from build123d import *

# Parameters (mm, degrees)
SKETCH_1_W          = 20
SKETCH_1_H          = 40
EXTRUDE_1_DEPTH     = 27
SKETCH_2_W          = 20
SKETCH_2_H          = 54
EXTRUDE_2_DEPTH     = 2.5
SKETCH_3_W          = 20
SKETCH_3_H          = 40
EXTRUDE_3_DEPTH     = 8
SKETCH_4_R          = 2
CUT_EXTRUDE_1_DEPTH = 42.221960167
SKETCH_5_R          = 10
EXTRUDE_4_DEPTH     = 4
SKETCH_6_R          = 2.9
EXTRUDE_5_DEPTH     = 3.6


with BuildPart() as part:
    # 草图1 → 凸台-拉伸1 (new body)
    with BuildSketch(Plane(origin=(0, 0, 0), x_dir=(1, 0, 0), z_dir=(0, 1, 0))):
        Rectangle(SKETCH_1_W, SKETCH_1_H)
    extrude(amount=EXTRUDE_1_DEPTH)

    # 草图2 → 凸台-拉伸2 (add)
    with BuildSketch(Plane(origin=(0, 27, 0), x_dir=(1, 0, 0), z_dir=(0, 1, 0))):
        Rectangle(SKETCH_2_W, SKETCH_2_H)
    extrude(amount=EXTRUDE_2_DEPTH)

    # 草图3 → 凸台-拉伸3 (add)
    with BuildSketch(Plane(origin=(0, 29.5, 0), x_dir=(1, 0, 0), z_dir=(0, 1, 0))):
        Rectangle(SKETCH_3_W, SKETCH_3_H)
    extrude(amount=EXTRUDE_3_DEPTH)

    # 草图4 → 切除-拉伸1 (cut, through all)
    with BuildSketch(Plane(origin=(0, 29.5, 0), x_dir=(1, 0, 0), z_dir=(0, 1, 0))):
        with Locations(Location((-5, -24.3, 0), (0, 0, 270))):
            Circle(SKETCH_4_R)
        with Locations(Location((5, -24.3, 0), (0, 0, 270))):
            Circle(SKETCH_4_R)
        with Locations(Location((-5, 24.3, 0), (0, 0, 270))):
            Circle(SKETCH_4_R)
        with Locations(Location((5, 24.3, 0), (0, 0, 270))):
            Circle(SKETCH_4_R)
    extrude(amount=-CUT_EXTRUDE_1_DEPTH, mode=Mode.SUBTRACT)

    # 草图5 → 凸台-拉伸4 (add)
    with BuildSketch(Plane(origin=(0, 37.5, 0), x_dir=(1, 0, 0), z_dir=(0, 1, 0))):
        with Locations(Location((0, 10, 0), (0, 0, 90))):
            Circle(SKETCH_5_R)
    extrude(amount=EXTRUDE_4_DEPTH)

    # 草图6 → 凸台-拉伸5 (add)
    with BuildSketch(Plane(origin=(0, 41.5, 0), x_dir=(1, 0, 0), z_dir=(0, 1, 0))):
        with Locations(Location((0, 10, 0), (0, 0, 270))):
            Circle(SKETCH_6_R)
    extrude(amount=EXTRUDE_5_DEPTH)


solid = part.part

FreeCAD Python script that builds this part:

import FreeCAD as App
import Part
import Sketcher

doc = App.newDocument("Part")
body = doc.addObject("PartDesign::Body", "Body")

sketch1 = body.newObject("Sketcher::SketchObject", "Sketch")
sketch1.AttachmentSupport = (doc.getObject("XZ_Plane"), [""])
sketch1.MapMode = "FlatFace"
sketch1.addGeometry(Part.LineSegment(App.Vector(-10, -20, 0), App.Vector(-10, 20, 0)), False)
sketch1.addGeometry(Part.LineSegment(App.Vector(-10, 20, 0), App.Vector(10, 20, 0)), False)
sketch1.addGeometry(Part.LineSegment(App.Vector(10, 20, 0), App.Vector(10, -20, 0)), False)
sketch1.addGeometry(Part.LineSegment(App.Vector(10, -20, 0), App.Vector(-10, -20, 0)), False)
sketch1.addConstraint(Sketcher.Constraint("Coincident", 0, 2, 1, 1))
sketch1.addConstraint(Sketcher.Constraint("Coincident", 1, 2, 2, 1))
sketch1.addConstraint(Sketcher.Constraint("Coincident", 2, 2, 3, 1))
sketch1.addConstraint(Sketcher.Constraint("Coincident", 3, 2, 0, 1))
sketch1.addConstraint(Sketcher.Constraint("Vertical", 0))
sketch1.addConstraint(Sketcher.Constraint("Horizontal", 1))
sketch1.addConstraint(Sketcher.Constraint("Vertical", 2))
sketch1.addConstraint(Sketcher.Constraint("Horizontal", 3))
sketch1.addConstraint(Sketcher.Constraint("Symmetric", 0, 2, 2, 2, -1, 1))
sketch1.addConstraint(Sketcher.Constraint("DistanceX", 1, 1, 1, 2, 20.0))
sketch1.addConstraint(Sketcher.Constraint("DistanceY", 0, 1, 0, 2, 40.0))
pad1 = body.newObject("PartDesign::Pad", "Pad")
pad1.Profile = sketch1
pad1.Length = 27
pad1.Reversed = True

sketch2 = body.newObject("Sketcher::SketchObject", "Sketch001")
sketch2.AttachmentSupport = (doc.getObject("XZ_Plane"), [""])
sketch2.MapMode = "FlatFace"
sketch2.AttachmentOffset = App.Placement(App.Vector(0, 0, -27), App.Rotation())
sketch2.addGeometry(Part.LineSegment(App.Vector(-10, -27, 0), App.Vector(-10, 27, 0)), False)
sketch2.addGeometry(Part.LineSegment(App.Vector(-10, 27, 0), App.Vector(10, 27, 0)), False)
sketch2.addGeometry(Part.LineSegment(App.Vector(10, 27, 0), App.Vector(10, -27, 0)), False)
sketch2.addGeometry(Part.LineSegment(App.Vector(10, -27, 0), App.Vector(-10, -27, 0)), False)
sketch2.addConstraint(Sketcher.Constraint("Coincident", 0, 2, 1, 1))
sketch2.addConstraint(Sketcher.Constraint("Coincident", 1, 2, 2, 1))
sketch2.addConstraint(Sketcher.Constraint("Coincident", 2, 2, 3, 1))
sketch2.addConstraint(Sketcher.Constraint("Coincident", 3, 2, 0, 1))
sketch2.addConstraint(Sketcher.Constraint("Vertical", 0))
sketch2.addConstraint(Sketcher.Constraint("Horizontal", 1))
sketch2.addConstraint(Sketcher.Constraint("Vertical", 2))
sketch2.addConstraint(Sketcher.Constraint("Horizontal", 3))
sketch2.addConstraint(Sketcher.Constraint("Symmetric", 0, 2, 2, 2, -1, 1))
sketch2.addConstraint(Sketcher.Constraint("DistanceX", 1, 1, 1, 2, 20.0))
sketch2.addConstraint(Sketcher.Constraint("DistanceY", 0, 1, 0, 2, 54.0))
pad2 = body.newObject("PartDesign::Pad", "Pad001")
pad2.Profile = sketch2
pad2.Length = 2.5
pad2.Reversed = True

sketch3 = body.newObject("Sketcher::SketchObject", "Sketch002")
sketch3.AttachmentSupport = (doc.getObject("XZ_Plane"), [""])
sketch3.MapMode = "FlatFace"
sketch3.AttachmentOffset = App.Placement(App.Vector(0, 0, -29.5), App.Rotation())
sketch3.addGeometry(Part.LineSegment(App.Vector(-10, -20, 0), App.Vector(-10, 20, 0)), False)
sketch3.addGeometry(Part.LineSegment(App.Vector(-10, 20, 0), App.Vector(10, 20, 0)), False)
sketch3.addGeometry(Part.LineSegment(App.Vector(10, 20, 0), App.Vector(10, -20, 0)), False)
sketch3.addGeometry(Part.LineSegment(App.Vector(10, -20, 0), App.Vector(-10, -20, 0)), False)
sketch3.addConstraint(Sketcher.Constraint("Coincident", 0, 2, 1, 1))
sketch3.addConstraint(Sketcher.Constraint("Coincident", 1, 2, 2, 1))
sketch3.addConstraint(Sketcher.Constraint("Coincident", 2, 2, 3, 1))
sketch3.addConstraint(Sketcher.Constraint("Coincident", 3, 2, 0, 1))
sketch3.addConstraint(Sketcher.Constraint("Vertical", 0))
sketch3.addConstraint(Sketcher.Constraint("Horizontal", 1))
sketch3.addConstraint(Sketcher.Constraint("Vertical", 2))
sketch3.addConstraint(Sketcher.Constraint("Horizontal", 3))
sketch3.addConstraint(Sketcher.Constraint("Symmetric", 0, 2, 2, 2, -1, 1))
sketch3.addConstraint(Sketcher.Constraint("DistanceX", 1, 1, 1, 2, 20.0))
sketch3.addConstraint(Sketcher.Constraint("DistanceY", 0, 1, 0, 2, 40.0))
pad3 = body.newObject("PartDesign::Pad", "Pad002")
pad3.Profile = sketch3
pad3.Length = 8
pad3.Reversed = True

sketch4 = body.newObject("Sketcher::SketchObject", "Sketch003")
sketch4.AttachmentSupport = (doc.getObject("XZ_Plane"), [""])
sketch4.MapMode = "FlatFace"
sketch4.AttachmentOffset = App.Placement(App.Vector(0, 0, -29.5), App.Rotation())
sketch4.addGeometry(Part.Circle(App.Vector(-5, 24.3, 0), App.Vector(0, 0, 1), 2), False)
sketch4.addGeometry(Part.Circle(App.Vector(5, 24.3, 0), App.Vector(0, 0, 1), 2), False)
sketch4.addGeometry(Part.Circle(App.Vector(-5, -24.3, 0), App.Vector(0, 0, 1), 2), False)
sketch4.addGeometry(Part.Circle(App.Vector(5, -24.3, 0), App.Vector(0, 0, 1), 2), False)
sketch4.addConstraint(Sketcher.Constraint("Equal", 0, 1))
sketch4.addConstraint(Sketcher.Constraint("Equal", 1, 2))
sketch4.addConstraint(Sketcher.Constraint("Equal", 2, 3))
sketch4.addConstraint(Sketcher.Constraint("Symmetric", 1, 3, 2, 3, -1, 1))
sketch4.addConstraint(Sketcher.Constraint("Symmetric", 0, 3, 3, 3, -1, 1))
sketch4.addConstraint(Sketcher.Constraint("Symmetric", 0, 3, 1, 3, -2))
sketch4.addConstraint(Sketcher.Constraint("Diameter", 0, 4.0))
sketch4.addConstraint(Sketcher.Constraint("DistanceX", 0, 3, -1, 1, 5.0))
sketch4.addConstraint(Sketcher.Constraint("DistanceY", -1, 1, 0, 3, 24.3))
pocket1 = body.newObject("PartDesign::Pocket", "Pocket")
pocket1.Profile = sketch4
pocket1.Type = "ThroughAll"
pocket1.Reversed = True

sketch5 = body.newObject("Sketcher::SketchObject", "Sketch004")
sketch5.AttachmentSupport = (doc.getObject("XZ_Plane"), [""])
sketch5.MapMode = "FlatFace"
sketch5.AttachmentOffset = App.Placement(App.Vector(0, 0, -37.5), App.Rotation())
sketch5.addGeometry(Part.Circle(App.Vector(0, -10, 0), App.Vector(0, 0, 1), 10), False)
sketch5.addConstraint(Sketcher.Constraint("PointOnObject", 0, 3, -2))
sketch5.addConstraint(Sketcher.Constraint("Diameter", 0, 20.0))
sketch5.addConstraint(Sketcher.Constraint("DistanceY", 0, 3, -1, 1, 10.0))
pad4 = body.newObject("PartDesign::Pad", "Pad003")
pad4.Profile = sketch5
pad4.Length = 4
pad4.Reversed = True

sketch6 = body.newObject("Sketcher::SketchObject", "Sketch005")
sketch6.AttachmentSupport = (doc.getObject("XZ_Plane"), [""])
sketch6.MapMode = "FlatFace"
sketch6.AttachmentOffset = App.Placement(App.Vector(0, 0, -41.5), App.Rotation())
sketch6.addGeometry(Part.Circle(App.Vector(0, -10, 0), App.Vector(0, 0, 1), 2.9), False)
sketch6.addConstraint(Sketcher.Constraint("PointOnObject", 0, 3, -2))
sketch6.addConstraint(Sketcher.Constraint("Diameter", 0, 5.8))
sketch6.addConstraint(Sketcher.Constraint("DistanceY", 0, 3, -1, 1, 10.0))
pad5 = body.newObject("PartDesign::Pad", "Pad004")
pad5.Profile = sketch6
pad5.Length = 3.6
pad5.Reversed = True

doc.recompute()
